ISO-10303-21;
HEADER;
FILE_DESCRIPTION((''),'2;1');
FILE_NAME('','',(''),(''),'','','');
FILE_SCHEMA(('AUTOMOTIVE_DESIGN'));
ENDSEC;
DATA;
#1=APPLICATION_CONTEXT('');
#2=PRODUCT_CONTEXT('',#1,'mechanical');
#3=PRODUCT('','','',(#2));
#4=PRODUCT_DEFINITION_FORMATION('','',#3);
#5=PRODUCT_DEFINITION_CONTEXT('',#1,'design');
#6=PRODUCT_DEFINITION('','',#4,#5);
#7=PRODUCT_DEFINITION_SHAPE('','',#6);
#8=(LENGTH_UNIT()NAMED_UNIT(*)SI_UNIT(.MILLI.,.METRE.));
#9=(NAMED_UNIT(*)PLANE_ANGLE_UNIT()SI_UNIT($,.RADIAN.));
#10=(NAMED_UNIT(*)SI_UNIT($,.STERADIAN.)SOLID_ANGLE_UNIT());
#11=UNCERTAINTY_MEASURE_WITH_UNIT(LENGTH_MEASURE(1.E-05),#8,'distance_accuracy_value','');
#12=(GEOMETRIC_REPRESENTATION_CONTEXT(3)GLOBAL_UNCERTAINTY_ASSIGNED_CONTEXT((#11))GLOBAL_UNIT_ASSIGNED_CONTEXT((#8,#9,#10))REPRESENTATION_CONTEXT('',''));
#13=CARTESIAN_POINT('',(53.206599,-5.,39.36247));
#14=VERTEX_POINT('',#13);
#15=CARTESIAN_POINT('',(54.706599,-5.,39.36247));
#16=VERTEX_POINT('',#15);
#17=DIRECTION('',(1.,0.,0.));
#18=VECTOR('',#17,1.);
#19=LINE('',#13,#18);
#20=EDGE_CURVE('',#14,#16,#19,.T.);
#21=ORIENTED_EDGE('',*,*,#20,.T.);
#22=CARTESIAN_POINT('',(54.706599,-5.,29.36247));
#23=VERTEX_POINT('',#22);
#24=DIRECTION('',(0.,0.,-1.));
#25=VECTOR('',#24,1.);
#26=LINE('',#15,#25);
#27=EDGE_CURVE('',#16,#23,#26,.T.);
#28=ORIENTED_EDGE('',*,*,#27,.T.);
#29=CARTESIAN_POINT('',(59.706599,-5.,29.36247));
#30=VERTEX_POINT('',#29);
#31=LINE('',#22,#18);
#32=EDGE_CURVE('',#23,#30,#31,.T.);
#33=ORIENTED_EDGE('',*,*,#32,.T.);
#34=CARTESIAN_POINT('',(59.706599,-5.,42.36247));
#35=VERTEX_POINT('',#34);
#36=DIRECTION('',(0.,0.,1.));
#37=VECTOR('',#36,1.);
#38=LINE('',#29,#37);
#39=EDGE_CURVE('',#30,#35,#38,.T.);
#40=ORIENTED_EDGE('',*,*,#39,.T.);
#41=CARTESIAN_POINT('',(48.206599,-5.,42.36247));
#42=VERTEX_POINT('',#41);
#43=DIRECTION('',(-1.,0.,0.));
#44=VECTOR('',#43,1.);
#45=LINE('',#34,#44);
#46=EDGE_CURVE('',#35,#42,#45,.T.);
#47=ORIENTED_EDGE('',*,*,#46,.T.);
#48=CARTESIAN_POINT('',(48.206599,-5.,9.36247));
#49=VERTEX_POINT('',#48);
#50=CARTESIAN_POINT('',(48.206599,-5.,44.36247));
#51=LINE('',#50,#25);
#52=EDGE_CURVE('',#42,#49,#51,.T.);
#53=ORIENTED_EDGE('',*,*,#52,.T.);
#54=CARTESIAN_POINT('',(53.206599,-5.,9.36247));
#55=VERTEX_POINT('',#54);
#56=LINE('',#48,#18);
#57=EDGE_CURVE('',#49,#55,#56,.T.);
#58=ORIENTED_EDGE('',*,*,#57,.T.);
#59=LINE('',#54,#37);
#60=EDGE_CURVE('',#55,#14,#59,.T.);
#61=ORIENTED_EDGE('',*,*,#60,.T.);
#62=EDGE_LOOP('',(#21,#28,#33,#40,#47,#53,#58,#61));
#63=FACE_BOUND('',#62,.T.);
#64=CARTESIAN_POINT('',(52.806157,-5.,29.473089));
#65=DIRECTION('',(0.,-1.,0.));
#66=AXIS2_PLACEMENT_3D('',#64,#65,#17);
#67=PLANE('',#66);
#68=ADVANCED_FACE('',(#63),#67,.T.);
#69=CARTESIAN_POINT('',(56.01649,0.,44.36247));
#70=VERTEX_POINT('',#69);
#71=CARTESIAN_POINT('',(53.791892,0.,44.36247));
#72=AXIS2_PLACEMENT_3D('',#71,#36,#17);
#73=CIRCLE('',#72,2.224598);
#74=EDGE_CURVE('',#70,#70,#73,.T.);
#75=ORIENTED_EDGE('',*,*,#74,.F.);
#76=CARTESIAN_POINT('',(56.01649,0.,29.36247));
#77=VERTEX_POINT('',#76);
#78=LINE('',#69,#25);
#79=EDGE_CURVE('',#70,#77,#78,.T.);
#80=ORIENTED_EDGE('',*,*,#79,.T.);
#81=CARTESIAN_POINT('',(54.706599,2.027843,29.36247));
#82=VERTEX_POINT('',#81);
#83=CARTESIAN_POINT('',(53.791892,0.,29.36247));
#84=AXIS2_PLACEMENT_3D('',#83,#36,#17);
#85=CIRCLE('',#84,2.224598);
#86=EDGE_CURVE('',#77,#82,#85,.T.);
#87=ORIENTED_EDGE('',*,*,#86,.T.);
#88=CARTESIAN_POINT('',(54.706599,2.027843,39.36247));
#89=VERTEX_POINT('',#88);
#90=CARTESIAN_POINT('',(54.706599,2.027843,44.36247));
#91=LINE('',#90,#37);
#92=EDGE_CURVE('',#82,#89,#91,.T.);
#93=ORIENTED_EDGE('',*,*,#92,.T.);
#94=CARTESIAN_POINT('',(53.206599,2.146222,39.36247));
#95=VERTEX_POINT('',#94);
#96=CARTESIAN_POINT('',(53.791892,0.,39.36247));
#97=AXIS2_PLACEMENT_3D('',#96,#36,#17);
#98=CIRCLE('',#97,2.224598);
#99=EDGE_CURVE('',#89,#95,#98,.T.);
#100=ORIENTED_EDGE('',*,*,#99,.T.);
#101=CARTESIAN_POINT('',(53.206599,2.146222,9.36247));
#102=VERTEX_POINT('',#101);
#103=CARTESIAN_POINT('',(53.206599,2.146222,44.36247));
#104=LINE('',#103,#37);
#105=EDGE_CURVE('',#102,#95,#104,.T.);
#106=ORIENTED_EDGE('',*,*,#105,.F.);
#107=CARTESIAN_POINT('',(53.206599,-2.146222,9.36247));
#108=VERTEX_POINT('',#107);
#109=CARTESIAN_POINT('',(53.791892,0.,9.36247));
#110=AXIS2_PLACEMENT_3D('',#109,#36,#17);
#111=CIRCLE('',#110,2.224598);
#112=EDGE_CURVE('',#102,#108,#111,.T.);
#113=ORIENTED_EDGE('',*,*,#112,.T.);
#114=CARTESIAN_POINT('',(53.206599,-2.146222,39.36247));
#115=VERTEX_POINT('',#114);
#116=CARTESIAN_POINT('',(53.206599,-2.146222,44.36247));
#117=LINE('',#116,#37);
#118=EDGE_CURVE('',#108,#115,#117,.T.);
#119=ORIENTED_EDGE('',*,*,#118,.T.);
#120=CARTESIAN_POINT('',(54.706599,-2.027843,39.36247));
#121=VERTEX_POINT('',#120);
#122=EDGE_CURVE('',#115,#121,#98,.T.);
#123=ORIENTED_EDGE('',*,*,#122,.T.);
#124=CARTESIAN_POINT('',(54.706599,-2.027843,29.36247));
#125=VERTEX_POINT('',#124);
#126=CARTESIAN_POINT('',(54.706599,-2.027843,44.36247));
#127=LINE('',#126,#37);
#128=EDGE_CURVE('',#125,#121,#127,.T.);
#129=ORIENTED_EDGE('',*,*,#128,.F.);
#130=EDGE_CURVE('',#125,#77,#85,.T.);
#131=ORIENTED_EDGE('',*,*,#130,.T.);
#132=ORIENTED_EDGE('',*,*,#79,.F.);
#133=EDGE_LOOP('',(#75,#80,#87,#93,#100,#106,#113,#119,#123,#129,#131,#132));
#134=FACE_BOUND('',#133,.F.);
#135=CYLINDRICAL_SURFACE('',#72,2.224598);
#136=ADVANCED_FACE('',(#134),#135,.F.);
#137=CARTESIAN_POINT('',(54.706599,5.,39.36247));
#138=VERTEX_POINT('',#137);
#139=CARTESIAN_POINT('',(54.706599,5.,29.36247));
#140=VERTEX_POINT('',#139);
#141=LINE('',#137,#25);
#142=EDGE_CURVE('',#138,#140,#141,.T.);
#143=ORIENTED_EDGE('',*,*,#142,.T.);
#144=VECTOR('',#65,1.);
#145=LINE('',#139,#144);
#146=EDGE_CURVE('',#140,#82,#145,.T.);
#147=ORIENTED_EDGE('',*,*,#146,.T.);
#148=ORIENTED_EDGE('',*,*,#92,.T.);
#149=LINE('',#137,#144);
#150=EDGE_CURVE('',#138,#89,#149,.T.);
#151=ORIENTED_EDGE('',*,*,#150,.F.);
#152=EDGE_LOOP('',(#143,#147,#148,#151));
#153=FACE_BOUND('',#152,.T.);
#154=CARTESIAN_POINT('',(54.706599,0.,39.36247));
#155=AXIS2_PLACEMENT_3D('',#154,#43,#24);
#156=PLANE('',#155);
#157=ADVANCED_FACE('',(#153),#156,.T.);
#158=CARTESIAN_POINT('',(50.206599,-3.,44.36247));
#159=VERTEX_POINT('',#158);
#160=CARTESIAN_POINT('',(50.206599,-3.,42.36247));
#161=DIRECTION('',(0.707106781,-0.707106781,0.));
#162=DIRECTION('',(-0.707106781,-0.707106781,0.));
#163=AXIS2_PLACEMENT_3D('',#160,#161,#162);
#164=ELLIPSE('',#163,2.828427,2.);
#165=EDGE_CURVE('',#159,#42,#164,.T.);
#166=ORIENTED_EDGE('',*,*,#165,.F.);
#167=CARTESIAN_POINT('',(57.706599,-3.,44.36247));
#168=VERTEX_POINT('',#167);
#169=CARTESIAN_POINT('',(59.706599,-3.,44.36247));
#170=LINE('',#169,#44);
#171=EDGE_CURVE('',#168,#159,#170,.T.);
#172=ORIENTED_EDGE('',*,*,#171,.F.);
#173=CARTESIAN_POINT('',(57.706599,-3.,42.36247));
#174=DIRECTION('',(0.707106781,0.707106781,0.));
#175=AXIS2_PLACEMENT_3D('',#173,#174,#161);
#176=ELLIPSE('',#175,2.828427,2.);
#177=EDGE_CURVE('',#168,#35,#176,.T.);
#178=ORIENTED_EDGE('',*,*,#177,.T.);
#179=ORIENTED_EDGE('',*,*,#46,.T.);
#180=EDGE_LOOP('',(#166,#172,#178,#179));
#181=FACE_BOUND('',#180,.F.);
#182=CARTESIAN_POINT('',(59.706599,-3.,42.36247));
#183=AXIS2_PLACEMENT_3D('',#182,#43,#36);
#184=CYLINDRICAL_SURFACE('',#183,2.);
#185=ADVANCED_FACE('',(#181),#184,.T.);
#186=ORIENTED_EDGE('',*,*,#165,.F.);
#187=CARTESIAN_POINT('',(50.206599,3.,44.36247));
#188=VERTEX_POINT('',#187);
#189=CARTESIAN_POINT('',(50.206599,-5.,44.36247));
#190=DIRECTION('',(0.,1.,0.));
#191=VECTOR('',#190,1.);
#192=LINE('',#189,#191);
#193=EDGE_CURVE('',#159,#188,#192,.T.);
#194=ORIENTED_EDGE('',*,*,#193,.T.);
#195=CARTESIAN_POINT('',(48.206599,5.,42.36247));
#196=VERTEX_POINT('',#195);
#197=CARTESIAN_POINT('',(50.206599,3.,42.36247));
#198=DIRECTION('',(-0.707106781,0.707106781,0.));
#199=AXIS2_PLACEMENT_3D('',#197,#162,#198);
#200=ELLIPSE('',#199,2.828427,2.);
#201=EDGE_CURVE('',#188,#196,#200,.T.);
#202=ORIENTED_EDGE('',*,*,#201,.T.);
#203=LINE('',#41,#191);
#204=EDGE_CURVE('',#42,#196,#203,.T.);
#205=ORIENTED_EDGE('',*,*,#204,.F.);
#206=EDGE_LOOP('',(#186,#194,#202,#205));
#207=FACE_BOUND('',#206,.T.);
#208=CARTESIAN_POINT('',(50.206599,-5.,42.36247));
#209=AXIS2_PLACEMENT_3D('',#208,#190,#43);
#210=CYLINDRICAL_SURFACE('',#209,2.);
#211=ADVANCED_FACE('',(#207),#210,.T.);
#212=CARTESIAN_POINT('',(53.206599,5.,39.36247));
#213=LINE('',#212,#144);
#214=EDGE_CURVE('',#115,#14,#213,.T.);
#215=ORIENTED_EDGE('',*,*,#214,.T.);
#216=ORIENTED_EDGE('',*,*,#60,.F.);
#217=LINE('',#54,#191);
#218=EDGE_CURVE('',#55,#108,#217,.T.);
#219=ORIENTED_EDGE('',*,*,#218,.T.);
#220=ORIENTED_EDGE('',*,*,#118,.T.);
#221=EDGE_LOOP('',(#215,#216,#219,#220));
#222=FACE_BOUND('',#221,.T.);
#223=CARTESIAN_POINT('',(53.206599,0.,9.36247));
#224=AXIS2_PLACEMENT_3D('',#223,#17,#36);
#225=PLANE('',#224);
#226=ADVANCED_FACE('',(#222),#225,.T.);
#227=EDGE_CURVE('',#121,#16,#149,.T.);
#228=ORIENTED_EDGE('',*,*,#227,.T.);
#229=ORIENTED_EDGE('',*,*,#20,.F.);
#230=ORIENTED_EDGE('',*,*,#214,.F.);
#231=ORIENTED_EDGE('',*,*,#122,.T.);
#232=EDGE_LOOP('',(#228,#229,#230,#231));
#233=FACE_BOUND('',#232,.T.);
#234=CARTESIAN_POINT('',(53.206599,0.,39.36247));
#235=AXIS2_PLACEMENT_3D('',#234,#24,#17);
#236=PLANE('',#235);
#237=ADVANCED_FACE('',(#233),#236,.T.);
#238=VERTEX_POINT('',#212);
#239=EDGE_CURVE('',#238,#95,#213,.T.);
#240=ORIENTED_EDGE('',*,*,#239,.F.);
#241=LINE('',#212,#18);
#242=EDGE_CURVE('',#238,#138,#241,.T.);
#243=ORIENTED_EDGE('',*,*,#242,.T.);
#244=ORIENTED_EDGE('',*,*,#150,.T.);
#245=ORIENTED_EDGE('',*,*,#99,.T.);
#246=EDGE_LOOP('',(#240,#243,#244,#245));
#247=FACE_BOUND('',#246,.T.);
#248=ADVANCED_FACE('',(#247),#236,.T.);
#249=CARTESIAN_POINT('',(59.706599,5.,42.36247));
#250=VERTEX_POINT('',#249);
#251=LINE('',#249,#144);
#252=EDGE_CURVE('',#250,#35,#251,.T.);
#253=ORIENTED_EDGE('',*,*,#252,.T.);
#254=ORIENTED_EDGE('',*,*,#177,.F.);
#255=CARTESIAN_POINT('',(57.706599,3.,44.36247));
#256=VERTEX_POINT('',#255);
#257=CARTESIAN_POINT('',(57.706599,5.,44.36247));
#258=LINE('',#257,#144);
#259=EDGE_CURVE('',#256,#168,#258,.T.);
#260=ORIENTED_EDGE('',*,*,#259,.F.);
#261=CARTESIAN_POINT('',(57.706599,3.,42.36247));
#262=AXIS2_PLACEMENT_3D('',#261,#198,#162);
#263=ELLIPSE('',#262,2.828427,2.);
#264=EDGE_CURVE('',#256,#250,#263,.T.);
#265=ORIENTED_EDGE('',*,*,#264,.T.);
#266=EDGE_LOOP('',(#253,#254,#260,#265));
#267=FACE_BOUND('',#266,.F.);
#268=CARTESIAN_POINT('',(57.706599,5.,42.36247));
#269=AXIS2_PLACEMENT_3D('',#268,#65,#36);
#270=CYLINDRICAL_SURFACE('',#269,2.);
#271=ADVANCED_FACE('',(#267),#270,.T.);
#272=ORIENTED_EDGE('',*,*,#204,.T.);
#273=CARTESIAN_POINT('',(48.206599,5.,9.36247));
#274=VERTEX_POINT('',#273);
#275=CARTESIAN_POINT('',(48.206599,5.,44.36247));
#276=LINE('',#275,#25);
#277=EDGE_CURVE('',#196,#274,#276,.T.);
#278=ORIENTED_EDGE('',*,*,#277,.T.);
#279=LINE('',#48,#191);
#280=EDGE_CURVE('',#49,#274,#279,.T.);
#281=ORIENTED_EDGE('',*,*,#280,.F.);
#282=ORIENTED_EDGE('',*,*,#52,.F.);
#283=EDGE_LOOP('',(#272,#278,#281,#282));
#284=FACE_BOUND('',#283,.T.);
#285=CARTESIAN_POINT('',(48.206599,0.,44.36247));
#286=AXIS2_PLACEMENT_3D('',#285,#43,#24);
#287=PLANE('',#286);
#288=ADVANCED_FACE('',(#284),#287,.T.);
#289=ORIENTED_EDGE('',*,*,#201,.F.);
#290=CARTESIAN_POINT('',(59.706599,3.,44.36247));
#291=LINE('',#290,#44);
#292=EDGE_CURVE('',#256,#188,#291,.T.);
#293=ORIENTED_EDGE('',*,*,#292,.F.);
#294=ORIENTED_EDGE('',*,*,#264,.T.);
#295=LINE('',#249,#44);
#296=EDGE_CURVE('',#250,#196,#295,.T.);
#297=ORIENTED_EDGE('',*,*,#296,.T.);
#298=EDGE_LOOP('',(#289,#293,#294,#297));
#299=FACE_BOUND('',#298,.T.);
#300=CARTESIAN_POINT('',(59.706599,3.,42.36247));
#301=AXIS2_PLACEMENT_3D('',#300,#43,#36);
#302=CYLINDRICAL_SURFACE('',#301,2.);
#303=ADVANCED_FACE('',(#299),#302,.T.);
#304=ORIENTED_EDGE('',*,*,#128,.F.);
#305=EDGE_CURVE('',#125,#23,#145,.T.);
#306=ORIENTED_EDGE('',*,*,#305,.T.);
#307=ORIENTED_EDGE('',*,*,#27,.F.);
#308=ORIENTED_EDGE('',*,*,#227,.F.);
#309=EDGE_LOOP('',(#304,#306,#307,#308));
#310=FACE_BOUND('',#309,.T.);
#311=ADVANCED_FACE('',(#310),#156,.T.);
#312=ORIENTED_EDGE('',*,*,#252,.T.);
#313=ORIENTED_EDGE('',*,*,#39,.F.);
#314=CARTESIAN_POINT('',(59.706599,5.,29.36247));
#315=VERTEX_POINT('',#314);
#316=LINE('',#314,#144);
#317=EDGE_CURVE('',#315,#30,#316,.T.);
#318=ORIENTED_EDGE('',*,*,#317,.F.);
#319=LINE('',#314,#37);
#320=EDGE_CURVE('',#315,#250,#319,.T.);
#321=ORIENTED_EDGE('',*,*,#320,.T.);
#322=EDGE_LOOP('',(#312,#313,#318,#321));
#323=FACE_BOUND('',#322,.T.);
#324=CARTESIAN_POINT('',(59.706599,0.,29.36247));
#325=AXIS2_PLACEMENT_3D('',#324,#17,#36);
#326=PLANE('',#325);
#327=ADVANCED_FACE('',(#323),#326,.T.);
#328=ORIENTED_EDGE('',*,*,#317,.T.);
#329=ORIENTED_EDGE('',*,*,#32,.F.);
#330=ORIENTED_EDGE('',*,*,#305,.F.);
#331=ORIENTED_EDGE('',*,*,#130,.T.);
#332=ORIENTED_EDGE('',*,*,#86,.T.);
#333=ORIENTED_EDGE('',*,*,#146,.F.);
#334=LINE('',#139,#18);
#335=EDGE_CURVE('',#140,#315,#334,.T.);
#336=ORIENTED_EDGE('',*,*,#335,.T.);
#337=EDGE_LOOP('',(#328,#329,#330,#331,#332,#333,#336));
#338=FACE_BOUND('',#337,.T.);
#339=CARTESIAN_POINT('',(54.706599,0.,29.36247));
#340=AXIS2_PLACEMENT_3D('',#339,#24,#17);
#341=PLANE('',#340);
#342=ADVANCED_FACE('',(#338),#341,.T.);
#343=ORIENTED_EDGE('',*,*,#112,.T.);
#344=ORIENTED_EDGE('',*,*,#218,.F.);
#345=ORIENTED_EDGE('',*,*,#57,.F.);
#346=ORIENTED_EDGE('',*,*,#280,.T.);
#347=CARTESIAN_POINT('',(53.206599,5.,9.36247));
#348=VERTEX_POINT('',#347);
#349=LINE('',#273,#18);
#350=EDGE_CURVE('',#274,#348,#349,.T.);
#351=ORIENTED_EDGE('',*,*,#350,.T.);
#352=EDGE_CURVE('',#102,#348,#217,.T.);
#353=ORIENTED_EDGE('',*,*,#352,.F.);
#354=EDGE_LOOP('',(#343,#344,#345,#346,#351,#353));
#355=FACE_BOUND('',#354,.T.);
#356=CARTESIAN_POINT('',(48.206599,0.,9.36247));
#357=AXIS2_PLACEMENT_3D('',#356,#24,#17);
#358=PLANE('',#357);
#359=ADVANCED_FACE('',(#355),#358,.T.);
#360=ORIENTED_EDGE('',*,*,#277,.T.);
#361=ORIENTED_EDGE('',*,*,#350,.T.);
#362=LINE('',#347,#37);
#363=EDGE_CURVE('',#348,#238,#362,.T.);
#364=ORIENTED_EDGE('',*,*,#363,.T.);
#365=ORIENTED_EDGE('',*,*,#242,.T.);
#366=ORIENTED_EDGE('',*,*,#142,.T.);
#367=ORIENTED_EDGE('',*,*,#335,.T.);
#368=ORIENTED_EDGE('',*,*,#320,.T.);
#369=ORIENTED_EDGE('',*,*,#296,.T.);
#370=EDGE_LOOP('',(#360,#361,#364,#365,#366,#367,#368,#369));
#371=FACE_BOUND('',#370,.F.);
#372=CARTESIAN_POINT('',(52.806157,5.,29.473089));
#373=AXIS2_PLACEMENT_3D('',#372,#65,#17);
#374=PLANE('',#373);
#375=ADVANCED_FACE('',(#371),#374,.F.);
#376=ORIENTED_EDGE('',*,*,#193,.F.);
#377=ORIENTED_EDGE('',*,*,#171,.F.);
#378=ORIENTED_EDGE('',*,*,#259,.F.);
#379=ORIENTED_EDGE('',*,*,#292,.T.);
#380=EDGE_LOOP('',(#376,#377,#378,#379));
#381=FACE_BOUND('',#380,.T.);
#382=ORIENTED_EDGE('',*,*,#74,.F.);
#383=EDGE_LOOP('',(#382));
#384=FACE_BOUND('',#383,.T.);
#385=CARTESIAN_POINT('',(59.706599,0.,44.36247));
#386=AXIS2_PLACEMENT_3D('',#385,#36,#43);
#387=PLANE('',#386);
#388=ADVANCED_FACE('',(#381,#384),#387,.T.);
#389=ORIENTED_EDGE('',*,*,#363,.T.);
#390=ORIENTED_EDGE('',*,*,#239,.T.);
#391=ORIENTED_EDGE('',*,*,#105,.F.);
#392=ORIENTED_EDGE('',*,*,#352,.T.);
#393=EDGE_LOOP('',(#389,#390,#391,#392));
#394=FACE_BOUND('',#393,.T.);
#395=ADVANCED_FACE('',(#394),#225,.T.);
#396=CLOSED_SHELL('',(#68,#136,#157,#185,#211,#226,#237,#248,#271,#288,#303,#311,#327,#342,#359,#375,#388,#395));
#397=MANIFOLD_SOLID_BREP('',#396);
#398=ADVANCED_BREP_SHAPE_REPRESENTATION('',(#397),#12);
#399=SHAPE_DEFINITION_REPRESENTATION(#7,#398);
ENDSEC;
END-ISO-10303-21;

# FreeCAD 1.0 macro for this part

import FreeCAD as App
import Part
import Sketcher

V = App.Vector


def edges_at(feature, points):
    """Names of the edges that pass closest to the given points."""
    edges = feature.Shape.Edges
    near = lambda p: min(range(len(edges)), key=lambda i: edges[i].distToShape(Part.Vertex(*p))[0])
    return sorted({f"Edge{near(p) + 1}" for p in points})

doc = App.newDocument("Part")
params = doc.addObject("Spreadsheet::Sheet", "Params")
for row, (alias, value) in enumerate([
    ("sketch1_width", "5 mm"),
    ("sketch1_height", "30 mm"),
    ("sketch1_height2", "10 mm"),
    ("sketch1_height3", "15 mm"),
    ("sketch1_width2", "1.5 mm"),
    ("pad1_length", "10 mm"),
    ("fillet_radius", "2 mm"),
], start=1):
    params.set(f"A{row}", alias)
    params.set(f"B{row}", "=" + value)
    params.setAlias(f"B{row}", alias)

body = doc.addObject("PartDesign::Body", "Body")

# Sketch on XZ plane
sketch1 = doc.addObject("Sketcher::SketchObject", "Sketch")
body.addObject(sketch1)
sketch1.AttachmentSupport = (doc.XZ_Plane, [""])
sketch1.MapMode = "FlatFace"
sketch1.addGeometry([
    Part.LineSegment(V(53.206599, 9.36247, 0), V(53.206599, 39.36247, 0)),  # 0
    Part.LineSegment(V(53.206599, 39.36247, 0), V(54.706599, 39.36247, 0)),  # 1
    Part.LineSegment(V(54.706599, 39.36247, 0), V(54.706599, 29.36247, 0)),  # 2
    Part.LineSegment(V(54.706599, 29.36247, 0), V(59.706599, 29.36247, 0)),  # 3
    Part.LineSegment(V(59.706599, 29.36247, 0), V(59.706599, 44.36247, 0)),  # 4
    Part.LineSegment(V(59.706599, 44.36247, 0), V(48.206599, 44.36247, 0)),  # 5
    Part.LineSegment(V(48.206599, 44.36247, 0), V(48.206599, 9.36247, 0)),  # 6
    Part.LineSegment(V(48.206599, 9.36247, 0), V(53.206599, 9.36247, 0)),  # 7
], False)
sketch1.addConstraint([
    Sketcher.Constraint("Coincident", 0, 2, 1, 1),
    Sketcher.Constraint("Coincident", 1, 2, 2, 1),
    Sketcher.Constraint("Coincident", 2, 2, 3, 1),
    Sketcher.Constraint("Coincident", 3, 2, 4, 1),
    Sketcher.Constraint("Coincident", 4, 2, 5, 1),
    Sketcher.Constraint("Coincident", 5, 2, 6, 1),
    Sketcher.Constraint("Coincident", 6, 2, 7, 1),
    Sketcher.Constraint("Coincident", 7, 2, 0, 1),
    Sketcher.Constraint("Vertical", 0),
    Sketcher.Constraint("Horizontal", 1),
    Sketcher.Constraint("Vertical", 2),
    Sketcher.Constraint("Horizontal", 3),
    Sketcher.Constraint("Vertical", 4),
    Sketcher.Constraint("Horizontal", 5),
    Sketcher.Constraint("Vertical", 6),
    Sketcher.Constraint("Horizontal", 7),
    Sketcher.Constraint("Equal", 3, 7),
    Sketcher.Constraint("DistanceX", 3, 1, 3, 2, 5.0),
    Sketcher.Constraint("DistanceY", 0, 1, 0, 2, 30.0),
    Sketcher.Constraint("DistanceY", 2, 2, 2, 1, 10.0),
    Sketcher.Constraint("DistanceY", 4, 1, 4, 2, 15.0),
    Sketcher.Constraint("DistanceX", 1, 1, 1, 2, 1.5),
    Sketcher.Constraint("DistanceX", -1, 1, 0, 2, 53.206599),
    Sketcher.Constraint("DistanceY", -1, 1, 0, 2, 39.36247),
])
sketch1.setExpression("Constraints[17]", "Params.sketch1_width")
sketch1.setExpression("Constraints[18]", "Params.sketch1_height")
sketch1.setExpression("Constraints[19]", "Params.sketch1_height2")
sketch1.setExpression("Constraints[20]", "Params.sketch1_height3")
sketch1.setExpression("Constraints[21]", "Params.sketch1_width2")
pad1 = doc.addObject("PartDesign::Pad", "Pad")
body.addObject(pad1)
pad1.Profile = sketch1
pad1.setExpression("Length", "Params.pad1_length")
pad1.Midplane = True
doc.recompute()

fillet = doc.addObject("PartDesign::Fillet", "Fillet")
body.addObject(fillet)
fillet.Base = (pad1, edges_at(pad1, [
    (59.707, 0, 44.362),
    (53.957, 5, 44.362),
    (53.957, -5, 44.362),
    (48.207, 0, 44.362),
]))
fillet.setExpression("Radius", "Params.fillet_radius")

# Sketch on XY plane
sketch2 = doc.addObject("Sketcher::SketchObject", "Sketch001")
body.addObject(sketch2)
sketch2.AttachmentSupport = (doc.XY_Plane, [""])
sketch2.MapMode = "FlatFace"
sketch2.AttachmentOffset = App.Placement(V(0, 0, 44.36247), App.Rotation())
sketch2.addGeometry(Part.Circle(V(53.791892, 0, 0), V(0, 0, 1), 2.224598), False)
sketch2.addConstraint([
    Sketcher.Constraint("PointOnObject", 0, 3, -1),
    Sketcher.Constraint("Diameter", 0, 4.449196),
    Sketcher.Constraint("DistanceX", -1, 1, 0, 3, 53.791892),
])
pocket1 = doc.addObject("PartDesign::Pocket", "Pocket")
body.addObject(pocket1)
pocket1.Profile = sketch2
pocket1.Type = "ThroughAll"

doc.recompute()
